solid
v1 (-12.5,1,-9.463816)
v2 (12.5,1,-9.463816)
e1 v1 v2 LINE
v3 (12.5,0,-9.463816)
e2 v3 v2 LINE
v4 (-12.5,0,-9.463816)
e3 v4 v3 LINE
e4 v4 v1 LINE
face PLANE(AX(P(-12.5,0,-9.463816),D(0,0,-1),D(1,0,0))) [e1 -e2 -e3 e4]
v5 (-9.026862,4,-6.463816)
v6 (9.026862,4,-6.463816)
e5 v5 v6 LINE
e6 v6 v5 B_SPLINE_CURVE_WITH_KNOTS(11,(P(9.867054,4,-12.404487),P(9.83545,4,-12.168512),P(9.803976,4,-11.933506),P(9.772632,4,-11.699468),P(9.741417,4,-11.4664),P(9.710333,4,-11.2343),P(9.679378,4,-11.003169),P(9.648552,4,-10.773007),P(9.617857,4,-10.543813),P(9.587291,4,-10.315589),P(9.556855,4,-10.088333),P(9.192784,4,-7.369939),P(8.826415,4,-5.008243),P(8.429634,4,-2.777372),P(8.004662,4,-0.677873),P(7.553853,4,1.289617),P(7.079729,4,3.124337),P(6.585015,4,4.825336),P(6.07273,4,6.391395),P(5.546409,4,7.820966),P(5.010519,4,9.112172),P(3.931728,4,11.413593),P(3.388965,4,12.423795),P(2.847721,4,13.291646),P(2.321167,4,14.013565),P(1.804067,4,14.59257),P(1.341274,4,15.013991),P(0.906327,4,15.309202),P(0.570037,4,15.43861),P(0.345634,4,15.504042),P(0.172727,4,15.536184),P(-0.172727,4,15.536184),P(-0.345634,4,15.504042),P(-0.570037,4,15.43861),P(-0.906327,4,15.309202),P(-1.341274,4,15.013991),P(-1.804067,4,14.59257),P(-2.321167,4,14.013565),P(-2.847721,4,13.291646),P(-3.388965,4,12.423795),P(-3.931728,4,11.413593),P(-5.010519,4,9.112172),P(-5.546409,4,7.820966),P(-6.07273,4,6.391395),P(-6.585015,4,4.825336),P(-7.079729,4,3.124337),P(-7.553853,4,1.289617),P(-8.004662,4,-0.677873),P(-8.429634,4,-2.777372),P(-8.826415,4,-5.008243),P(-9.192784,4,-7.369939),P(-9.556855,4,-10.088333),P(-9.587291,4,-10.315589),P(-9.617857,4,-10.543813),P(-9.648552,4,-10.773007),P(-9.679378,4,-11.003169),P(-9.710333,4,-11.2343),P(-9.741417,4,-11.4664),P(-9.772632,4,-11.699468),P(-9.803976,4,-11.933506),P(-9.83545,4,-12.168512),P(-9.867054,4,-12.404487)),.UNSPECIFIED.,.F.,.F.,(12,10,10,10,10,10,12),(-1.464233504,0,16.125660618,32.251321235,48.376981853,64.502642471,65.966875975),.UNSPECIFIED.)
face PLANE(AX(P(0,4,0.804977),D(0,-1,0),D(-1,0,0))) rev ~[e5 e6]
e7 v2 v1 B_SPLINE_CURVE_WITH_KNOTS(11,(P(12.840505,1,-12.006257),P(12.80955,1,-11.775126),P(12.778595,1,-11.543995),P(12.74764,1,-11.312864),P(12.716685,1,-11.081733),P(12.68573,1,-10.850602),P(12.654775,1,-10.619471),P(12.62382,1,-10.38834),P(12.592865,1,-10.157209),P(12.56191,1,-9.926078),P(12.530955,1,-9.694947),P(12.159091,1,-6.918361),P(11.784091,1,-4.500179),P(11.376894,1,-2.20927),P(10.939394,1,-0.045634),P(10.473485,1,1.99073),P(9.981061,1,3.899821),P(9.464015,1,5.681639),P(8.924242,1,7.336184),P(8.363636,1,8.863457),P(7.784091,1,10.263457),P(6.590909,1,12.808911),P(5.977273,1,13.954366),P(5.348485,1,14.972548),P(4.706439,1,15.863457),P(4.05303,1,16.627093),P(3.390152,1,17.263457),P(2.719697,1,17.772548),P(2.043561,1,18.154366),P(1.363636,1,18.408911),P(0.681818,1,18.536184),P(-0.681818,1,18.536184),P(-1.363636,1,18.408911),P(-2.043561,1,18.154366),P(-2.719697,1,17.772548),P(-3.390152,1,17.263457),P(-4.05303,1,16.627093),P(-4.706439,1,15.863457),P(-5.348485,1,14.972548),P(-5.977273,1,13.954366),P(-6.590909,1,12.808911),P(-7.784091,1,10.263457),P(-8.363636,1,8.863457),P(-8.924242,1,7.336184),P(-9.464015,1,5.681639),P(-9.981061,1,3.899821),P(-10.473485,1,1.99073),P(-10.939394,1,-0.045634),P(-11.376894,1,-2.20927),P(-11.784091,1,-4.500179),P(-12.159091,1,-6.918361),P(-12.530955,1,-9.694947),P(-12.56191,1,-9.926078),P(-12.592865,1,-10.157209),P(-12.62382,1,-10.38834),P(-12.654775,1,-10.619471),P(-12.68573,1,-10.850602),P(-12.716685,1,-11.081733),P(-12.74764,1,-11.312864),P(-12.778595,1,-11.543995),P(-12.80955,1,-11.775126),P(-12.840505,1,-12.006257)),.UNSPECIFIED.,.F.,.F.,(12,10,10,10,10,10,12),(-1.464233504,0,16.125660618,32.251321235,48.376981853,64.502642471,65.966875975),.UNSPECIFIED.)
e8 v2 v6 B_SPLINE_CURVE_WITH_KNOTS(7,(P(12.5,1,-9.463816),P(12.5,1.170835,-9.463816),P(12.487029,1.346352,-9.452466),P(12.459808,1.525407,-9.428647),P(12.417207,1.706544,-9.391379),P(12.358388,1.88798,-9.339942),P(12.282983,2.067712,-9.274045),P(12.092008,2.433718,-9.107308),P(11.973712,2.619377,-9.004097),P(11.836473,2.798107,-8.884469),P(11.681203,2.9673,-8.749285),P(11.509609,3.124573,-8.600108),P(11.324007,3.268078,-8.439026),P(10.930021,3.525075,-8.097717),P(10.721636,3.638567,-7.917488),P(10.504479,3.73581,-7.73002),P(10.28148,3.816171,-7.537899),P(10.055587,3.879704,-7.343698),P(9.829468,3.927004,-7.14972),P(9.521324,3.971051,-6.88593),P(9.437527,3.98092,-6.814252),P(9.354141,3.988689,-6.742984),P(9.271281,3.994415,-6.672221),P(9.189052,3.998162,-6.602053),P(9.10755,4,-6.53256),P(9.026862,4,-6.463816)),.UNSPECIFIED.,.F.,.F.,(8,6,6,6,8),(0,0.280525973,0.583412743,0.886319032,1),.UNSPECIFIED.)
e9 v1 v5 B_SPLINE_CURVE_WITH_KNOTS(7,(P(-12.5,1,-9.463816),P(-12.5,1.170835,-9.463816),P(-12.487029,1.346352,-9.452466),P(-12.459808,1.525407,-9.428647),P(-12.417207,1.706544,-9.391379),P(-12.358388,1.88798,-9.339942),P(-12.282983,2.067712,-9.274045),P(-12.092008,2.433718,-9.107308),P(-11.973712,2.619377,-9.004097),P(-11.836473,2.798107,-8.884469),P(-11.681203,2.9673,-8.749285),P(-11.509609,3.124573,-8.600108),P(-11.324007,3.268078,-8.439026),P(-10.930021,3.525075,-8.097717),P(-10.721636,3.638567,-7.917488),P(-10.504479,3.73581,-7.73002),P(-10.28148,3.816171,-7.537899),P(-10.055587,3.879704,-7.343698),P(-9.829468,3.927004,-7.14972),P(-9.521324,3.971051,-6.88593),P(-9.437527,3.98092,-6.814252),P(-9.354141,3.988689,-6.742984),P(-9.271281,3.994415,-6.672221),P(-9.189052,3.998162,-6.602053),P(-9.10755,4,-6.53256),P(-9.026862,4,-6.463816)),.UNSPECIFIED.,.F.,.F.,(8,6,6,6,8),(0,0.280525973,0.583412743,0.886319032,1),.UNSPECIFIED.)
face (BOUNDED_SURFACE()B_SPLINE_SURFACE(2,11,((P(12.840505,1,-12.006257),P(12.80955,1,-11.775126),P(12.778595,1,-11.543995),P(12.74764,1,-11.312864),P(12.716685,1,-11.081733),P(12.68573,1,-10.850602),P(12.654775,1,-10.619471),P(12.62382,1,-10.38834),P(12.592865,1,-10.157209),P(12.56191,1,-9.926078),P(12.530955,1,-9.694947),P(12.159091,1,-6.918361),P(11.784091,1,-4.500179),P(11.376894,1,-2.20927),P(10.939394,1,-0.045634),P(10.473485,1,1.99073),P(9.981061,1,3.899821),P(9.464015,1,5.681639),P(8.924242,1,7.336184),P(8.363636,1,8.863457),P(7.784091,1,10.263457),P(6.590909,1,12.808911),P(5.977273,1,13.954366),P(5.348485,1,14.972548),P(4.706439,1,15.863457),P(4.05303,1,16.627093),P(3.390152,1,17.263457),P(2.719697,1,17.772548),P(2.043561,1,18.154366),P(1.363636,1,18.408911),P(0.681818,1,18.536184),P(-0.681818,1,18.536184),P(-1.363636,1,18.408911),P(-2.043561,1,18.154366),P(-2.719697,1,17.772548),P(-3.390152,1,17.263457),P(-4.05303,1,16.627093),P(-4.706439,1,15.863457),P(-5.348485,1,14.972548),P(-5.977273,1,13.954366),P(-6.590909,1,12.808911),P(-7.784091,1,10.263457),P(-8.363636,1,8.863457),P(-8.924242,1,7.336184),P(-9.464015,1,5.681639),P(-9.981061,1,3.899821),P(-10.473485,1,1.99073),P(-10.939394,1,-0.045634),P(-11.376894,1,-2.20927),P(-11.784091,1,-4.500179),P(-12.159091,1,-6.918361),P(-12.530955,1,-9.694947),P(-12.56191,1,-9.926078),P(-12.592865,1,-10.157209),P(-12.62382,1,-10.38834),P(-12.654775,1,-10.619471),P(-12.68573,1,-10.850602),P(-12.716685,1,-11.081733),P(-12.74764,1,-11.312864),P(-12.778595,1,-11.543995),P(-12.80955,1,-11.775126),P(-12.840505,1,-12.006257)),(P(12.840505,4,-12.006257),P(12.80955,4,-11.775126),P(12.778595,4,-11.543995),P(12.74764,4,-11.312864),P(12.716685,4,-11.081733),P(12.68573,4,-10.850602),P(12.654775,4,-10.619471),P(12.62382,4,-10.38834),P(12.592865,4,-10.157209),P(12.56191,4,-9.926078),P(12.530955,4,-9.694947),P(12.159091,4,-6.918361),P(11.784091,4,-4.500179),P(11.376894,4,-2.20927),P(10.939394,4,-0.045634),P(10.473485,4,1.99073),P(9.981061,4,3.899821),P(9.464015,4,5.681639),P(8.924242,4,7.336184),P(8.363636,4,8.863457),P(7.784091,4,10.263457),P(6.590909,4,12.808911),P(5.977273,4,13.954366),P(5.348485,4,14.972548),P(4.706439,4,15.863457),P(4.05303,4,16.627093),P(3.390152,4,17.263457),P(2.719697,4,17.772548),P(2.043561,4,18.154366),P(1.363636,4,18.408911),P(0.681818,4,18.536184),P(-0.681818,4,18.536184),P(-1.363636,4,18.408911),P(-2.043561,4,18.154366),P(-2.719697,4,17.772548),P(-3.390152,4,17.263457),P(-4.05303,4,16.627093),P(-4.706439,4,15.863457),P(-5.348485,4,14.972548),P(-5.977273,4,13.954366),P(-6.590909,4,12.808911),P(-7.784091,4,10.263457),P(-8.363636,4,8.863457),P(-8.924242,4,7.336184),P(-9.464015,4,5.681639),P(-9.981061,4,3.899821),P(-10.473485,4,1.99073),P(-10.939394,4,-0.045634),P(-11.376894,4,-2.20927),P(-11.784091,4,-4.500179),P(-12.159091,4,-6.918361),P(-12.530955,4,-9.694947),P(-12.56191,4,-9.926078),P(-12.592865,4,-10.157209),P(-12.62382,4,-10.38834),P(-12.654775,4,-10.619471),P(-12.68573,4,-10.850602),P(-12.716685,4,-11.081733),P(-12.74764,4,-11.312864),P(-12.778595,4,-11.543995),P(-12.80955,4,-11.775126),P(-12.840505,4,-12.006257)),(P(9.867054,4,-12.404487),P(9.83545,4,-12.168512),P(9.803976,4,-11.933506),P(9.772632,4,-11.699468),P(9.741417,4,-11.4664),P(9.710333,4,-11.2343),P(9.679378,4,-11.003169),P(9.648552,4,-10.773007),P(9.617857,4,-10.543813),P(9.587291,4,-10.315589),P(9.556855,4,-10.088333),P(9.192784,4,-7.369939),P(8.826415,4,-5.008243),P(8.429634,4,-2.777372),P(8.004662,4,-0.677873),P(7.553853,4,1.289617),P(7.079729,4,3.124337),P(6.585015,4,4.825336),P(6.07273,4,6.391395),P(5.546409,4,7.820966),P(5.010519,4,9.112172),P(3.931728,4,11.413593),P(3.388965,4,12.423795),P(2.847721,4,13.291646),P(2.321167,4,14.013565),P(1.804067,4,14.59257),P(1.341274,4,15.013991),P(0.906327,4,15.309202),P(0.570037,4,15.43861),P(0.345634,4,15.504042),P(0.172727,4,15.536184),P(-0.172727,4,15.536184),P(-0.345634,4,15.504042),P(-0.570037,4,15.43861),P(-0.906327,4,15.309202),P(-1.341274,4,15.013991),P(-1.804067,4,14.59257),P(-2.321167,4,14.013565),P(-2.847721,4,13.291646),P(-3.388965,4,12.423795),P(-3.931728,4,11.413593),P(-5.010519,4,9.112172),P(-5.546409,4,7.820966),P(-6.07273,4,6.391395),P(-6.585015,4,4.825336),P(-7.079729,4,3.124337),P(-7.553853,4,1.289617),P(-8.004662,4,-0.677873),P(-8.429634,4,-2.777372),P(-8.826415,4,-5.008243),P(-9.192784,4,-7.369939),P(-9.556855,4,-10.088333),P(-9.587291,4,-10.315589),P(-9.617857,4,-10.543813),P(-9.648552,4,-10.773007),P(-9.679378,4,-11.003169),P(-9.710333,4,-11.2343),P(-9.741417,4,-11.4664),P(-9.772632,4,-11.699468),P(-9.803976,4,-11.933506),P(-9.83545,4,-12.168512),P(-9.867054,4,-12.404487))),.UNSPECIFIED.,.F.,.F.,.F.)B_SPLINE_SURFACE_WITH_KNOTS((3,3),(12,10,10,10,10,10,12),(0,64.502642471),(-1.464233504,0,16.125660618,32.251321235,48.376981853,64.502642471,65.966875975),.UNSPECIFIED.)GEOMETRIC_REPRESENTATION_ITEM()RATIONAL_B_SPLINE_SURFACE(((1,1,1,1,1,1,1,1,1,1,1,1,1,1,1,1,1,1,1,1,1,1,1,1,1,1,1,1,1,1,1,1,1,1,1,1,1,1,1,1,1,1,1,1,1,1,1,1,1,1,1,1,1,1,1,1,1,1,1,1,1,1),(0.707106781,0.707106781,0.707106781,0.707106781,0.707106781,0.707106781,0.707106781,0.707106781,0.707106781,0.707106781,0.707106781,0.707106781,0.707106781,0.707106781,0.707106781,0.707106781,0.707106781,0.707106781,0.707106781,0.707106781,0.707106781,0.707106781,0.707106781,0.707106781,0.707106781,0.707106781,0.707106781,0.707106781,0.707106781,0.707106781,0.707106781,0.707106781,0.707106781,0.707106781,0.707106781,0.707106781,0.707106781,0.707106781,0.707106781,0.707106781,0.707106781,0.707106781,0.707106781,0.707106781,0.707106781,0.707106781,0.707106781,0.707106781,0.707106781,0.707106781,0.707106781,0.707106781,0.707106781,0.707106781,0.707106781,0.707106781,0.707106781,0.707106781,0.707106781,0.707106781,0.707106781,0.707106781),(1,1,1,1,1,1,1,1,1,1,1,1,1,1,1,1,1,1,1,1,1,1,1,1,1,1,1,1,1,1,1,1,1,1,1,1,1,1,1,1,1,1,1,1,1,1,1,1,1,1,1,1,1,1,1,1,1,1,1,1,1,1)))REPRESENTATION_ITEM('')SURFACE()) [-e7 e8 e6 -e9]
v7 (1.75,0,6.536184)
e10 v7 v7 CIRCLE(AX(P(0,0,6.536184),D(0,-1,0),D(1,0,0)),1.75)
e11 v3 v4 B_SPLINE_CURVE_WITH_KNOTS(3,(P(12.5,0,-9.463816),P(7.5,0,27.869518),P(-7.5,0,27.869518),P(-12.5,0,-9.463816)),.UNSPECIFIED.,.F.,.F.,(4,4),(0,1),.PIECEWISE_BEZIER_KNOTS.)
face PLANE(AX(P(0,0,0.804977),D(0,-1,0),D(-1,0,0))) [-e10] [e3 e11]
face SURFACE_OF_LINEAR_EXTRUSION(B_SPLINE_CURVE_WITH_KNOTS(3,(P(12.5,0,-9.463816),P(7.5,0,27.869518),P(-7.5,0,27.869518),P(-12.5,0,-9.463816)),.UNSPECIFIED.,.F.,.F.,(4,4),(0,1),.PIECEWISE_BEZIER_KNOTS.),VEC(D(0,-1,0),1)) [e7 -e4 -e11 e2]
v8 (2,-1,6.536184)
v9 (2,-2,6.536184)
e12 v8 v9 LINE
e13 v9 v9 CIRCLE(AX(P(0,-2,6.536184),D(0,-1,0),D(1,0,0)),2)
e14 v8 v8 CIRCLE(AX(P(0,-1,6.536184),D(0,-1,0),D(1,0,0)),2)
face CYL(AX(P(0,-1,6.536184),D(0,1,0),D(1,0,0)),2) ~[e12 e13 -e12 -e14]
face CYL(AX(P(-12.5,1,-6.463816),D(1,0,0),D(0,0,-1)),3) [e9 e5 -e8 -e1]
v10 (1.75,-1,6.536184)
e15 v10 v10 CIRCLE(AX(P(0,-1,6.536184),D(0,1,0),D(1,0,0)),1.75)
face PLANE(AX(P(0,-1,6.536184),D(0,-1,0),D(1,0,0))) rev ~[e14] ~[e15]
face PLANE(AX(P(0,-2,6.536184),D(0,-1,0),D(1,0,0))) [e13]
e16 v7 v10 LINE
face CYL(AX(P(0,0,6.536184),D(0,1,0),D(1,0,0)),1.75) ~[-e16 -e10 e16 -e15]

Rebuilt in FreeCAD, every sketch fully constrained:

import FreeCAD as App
import Part
import Sketcher

V = App.Vector
Q = App.Units.Quantity


def edges_at(feature, points):
    """Names of the edges that pass closest to the given points."""
    edges = feature.Shape.Edges
    near = lambda p: min(range(len(edges)), key=lambda i: edges[i].distToShape(Part.Vertex(*p))[0])
    return sorted({f"Edge{near(p) + 1}" for p in points})

doc = App.newDocument("Part")
body = doc.addObject("PartDesign::Body", "Body")

sketch1 = body.newObject("Sketcher::SketchObject", "Sketch")
sketch1.AttachmentSupport = (doc.getObject("XZ_Plane"), [""])
sketch1.MapMode = "FlatFace"
sketch1.addGeometry(Part.LineSegment(V(12.5, -9.463816, 0), V(-12.5, -9.463816, 0)), False)
sketch1.addGeometry(Part.BSplineCurve([V(12.5, -9.463816, 0), V(7.5, 27.869518, 0), V(-7.5, 27.869518, 0), V(-12.5, -9.463816, 0)], [4, 4], [0, 1], False, 3, [1, 1, 1, 1], False), False)
sketch1.addConstraint(Sketcher.Constraint("Block", 1))
sketch1.addConstraint(Sketcher.Constraint("Coincident", 0, 1, 1, 1))
sketch1.addConstraint(Sketcher.Constraint("Coincident", 1, 2, 0, 2))
pad1 = body.newObject("PartDesign::Pad", "Pad")
pad1.Profile = sketch1
pad1.Length = 4
pad1.Reversed = True
doc.recompute()

fillet = body.newObject("PartDesign::Fillet", "Fillet")
fillet.Base = (pad1, edges_at(pad1, [(0, 4, -9.464), (0.024, 4, 18.536)]))
fillet.Radius = 3

sketch2 = body.newObject("Sketcher::SketchObject", "Sketch001")
sketch2.AttachmentSupport = (doc.getObject("XZ_Plane"), [""])
sketch2.MapMode = "FlatFace"
sketch2.addGeometry(Part.Circle(V(0, 6.5, 0), V(0, 0, 1), 1.8), False)
sketch2.addConstraint(Sketcher.Constraint("PointOnObject", 0, 3, -2))
sketch2.addConstraint(Sketcher.Constraint("Diameter", 0, Q("3.5 mm")))
sketch2.addConstraint(Sketcher.Constraint("DistanceY", -1, 1, 0, 3, Q("6.536184 mm")))
pad2 = body.newObject("PartDesign::Pad", "Pad001")
pad2.Profile = sketch2
pad2.Length = 2

sketch3 = body.newObject("Sketcher::SketchObject", "Sketch002")
sketch3.AttachmentSupport = (doc.getObject("XZ_Plane"), [""])
sketch3.MapMode = "FlatFace"
sketch3.AttachmentOffset = App.Placement(V(0, 0, 1), App.Rotation())
sketch3.addGeometry(Part.Circle(V(0, 6.5, 0), V(0, 0, 1), 2), False)
sketch3.addConstraint(Sketcher.Constraint("PointOnObject", 0, 3, -2))
sketch3.addConstraint(Sketcher.Constraint("Diameter", 0, Q("4 mm")))
sketch3.addConstraint(Sketcher.Constraint("DistanceY", -1, 1, 0, 3, Q("6.536184 mm")))
pad3 = body.newObject("PartDesign::Pad", "Pad002")
pad3.Profile = sketch3
pad3.Length = 1

doc.recompute()
